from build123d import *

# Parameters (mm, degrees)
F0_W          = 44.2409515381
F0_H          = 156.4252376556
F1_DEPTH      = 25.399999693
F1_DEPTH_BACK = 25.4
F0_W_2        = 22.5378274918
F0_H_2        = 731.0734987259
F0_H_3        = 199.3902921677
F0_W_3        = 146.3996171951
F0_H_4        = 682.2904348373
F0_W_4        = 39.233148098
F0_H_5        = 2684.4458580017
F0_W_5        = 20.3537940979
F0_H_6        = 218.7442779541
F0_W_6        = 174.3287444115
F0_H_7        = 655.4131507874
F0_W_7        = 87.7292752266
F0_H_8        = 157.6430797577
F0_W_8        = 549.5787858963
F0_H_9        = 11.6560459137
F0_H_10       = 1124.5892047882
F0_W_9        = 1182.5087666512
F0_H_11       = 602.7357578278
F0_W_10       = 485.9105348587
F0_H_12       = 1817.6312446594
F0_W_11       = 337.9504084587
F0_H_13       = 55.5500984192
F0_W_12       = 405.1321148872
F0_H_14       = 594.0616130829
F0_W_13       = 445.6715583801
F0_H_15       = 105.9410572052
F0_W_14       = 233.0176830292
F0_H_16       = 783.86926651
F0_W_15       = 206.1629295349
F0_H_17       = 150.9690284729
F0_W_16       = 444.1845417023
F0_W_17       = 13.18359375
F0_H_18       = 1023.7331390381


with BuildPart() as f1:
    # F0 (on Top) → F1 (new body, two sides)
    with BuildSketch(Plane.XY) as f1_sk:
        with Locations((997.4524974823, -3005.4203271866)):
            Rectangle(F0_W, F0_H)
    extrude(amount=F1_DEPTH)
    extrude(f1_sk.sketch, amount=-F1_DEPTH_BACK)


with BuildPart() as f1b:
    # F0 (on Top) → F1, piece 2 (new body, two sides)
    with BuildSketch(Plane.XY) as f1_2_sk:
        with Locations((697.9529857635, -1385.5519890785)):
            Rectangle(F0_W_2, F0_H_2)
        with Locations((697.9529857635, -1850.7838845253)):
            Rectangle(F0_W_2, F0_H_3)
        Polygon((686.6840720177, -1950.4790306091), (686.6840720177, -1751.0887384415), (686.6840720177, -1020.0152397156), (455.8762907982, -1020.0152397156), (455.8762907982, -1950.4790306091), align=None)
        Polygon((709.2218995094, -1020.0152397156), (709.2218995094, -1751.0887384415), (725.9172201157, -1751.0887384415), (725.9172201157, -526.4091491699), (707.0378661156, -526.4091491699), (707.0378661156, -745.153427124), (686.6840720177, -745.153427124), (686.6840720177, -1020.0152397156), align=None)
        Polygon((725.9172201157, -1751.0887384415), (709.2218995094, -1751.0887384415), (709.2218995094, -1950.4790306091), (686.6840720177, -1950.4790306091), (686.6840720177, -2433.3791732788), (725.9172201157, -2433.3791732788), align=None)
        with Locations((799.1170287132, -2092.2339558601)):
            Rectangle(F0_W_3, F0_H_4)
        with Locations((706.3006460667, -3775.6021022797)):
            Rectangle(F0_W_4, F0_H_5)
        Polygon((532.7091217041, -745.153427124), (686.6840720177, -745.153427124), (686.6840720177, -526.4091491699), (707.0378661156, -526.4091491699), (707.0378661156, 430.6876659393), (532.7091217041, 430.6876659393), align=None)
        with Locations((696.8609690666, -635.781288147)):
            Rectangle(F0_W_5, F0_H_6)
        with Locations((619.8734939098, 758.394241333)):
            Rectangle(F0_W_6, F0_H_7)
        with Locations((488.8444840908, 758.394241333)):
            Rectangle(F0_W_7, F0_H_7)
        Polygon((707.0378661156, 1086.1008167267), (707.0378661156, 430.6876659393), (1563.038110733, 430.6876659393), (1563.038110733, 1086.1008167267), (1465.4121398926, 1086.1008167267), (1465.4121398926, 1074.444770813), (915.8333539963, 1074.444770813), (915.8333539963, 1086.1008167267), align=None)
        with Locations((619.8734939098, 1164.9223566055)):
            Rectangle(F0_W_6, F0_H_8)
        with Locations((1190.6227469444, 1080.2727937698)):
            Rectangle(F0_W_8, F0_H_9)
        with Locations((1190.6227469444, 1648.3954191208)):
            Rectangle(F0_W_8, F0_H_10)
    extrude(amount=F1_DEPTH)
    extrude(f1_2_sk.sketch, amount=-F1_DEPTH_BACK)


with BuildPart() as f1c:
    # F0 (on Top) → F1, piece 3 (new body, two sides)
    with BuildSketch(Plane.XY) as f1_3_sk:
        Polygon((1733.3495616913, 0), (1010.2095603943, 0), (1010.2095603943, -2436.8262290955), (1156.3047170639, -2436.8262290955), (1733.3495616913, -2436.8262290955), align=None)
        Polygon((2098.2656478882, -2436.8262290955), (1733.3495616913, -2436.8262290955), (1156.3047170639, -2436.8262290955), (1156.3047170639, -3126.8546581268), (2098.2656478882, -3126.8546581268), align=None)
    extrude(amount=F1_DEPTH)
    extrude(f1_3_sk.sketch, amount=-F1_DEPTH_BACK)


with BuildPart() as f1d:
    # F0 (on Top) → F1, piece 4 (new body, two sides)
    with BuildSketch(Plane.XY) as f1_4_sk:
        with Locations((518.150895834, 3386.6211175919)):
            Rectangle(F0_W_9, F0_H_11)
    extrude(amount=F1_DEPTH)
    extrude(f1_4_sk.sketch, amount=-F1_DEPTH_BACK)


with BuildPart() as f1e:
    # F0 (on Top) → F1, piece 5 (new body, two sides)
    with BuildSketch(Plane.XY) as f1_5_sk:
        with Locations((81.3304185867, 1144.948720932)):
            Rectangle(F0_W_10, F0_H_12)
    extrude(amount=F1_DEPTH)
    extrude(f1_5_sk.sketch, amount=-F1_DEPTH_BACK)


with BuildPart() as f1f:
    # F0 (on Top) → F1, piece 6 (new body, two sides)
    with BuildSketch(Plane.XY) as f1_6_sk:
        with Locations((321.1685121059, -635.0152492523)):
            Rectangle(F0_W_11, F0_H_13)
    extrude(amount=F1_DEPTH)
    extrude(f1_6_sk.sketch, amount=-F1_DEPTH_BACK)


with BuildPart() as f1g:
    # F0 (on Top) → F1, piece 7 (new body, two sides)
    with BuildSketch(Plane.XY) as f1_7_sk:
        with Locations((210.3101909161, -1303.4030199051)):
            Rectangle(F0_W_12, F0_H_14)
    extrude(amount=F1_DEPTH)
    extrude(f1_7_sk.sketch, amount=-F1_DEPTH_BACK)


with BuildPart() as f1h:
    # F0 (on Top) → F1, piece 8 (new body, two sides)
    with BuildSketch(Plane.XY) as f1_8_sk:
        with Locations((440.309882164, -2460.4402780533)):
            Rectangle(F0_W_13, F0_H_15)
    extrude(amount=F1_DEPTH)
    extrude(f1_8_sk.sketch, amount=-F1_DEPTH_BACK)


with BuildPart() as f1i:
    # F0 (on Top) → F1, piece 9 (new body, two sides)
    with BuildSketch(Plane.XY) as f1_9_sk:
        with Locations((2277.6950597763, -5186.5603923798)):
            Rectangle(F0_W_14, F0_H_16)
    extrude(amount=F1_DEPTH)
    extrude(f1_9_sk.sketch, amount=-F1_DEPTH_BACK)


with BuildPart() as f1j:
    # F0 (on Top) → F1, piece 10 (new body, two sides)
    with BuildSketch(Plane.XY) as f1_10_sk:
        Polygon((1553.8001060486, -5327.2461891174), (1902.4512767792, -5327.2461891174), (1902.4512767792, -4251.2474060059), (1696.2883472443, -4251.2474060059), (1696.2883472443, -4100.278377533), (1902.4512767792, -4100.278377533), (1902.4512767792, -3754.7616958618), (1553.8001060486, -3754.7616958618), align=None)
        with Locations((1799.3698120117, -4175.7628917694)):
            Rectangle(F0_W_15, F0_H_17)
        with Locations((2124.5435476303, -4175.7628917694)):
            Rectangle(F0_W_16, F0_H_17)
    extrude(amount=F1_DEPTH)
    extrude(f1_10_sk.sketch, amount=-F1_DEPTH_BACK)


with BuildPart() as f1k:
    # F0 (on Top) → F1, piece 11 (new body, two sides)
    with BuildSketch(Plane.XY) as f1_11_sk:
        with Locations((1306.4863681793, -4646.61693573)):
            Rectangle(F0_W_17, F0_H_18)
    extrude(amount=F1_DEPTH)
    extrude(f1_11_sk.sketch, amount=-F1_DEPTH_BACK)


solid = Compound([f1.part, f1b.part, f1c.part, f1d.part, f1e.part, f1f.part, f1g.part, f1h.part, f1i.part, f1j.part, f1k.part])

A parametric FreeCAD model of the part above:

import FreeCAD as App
import Part
import Sketcher
from FreeCAD import Vector
Q = App.Units.Quantity


def add_polygon(sketch, points):
    """Adds a closed chain of lines whose ends are joined by coincident constraints."""
    first, n = sketch.GeometryCount, len(points)
    for a, b in zip(points, points[1:] + points[:1]):
        sketch.addGeometry(Part.LineSegment(App.Vector(*a, 0), App.Vector(*b, 0)), False)
    for i in range(n):
        sketch.addConstraint(Sketcher.Constraint("Coincident", first + i, 2, first + (i + 1) % n, 1))

doc = App.newDocument("Part")
body = doc.addObject("PartDesign::Body", "Body")

# Sketch on XY plane
sketch1 = body.newObject("Sketcher::SketchObject", "Sketch")
sketch1.AttachmentSupport = (doc.getObject("XY_Plane"), [""])
sketch1.MapMode = "FlatFace"
add_polygon(sketch1, [(975.332022, -2927.207708), (975.332022, -3083.632946), (1019.572973, -3083.632946), (1019.572973, -2927.207708)])  # lines 0-3
sketch1.addConstraint(Sketcher.Constraint("Vertical", 0))
sketch1.addConstraint(Sketcher.Constraint("Horizontal", 1))
sketch1.addConstraint(Sketcher.Constraint("Vertical", 2))
sketch1.addConstraint(Sketcher.Constraint("Horizontal", 3))
sketch1.addConstraint(Sketcher.Constraint("DistanceX", 1, 1, 1, 2, 44.240952))
sketch1.addConstraint(Sketcher.Constraint("DistanceY", 0, 2, 0, 1, 156.425238))
sketch1.addConstraint(Sketcher.Constraint("DistanceX", -1, 1, 0, 2, 975.332022))
sketch1.addConstraint(Sketcher.Constraint("DistanceY", 2, 2, -1, 1, 2927.207708))
pad1 = body.newObject("PartDesign::Pad", "Pad")
pad1.Profile = sketch1
pad1.Type = "TwoLengths"
pad1.Length = Q("1 in")
pad1.Length2 = Q("1 in")
body2 = doc.addObject("PartDesign::Body", "Body001")

# Sketch on XY plane
sketch2 = body2.newObject("Sketcher::SketchObject", "Sketch001")
sketch2.AttachmentSupport = (doc.getObject("XY_Plane001"), [""])
sketch2.MapMode = "FlatFace"
add_polygon(sketch2, [(725.91722, -526.409149), (707.037866, -526.409149), (707.037866, 430.687666), (1563.038111, 430.687666), (1563.038111, 1086.100817), (1465.41214, 1086.100817), (1465.41214, 2210.690022), (915.833354, 2210.690022), (915.833354, 1086.100817), (707.037866, 1086.100817), (707.037866, 1243.743896), (532.709122, 1243.743896), (532.709122, 1086.100817), (444.979846, 1086.100817), (444.979846, 430.687666), (532.709122, 430.687666), (532.709122, -745.153427), (686.684072, -745.153427), (686.684072, -1020.01524), (455.876291, -1020.01524), (455.876291, -1950.479031), (686.684072, -1950.479031), (686.684072, -5117.825031), (725.91722, -5117.825031), (725.91722, -2433.379173), (872.316837, -2433.379173), (872.316837, -1751.088738), (725.91722, -1751.088738)])  # lines 0-27
sketch2.addConstraint(Sketcher.Constraint("Horizontal", 0))
sketch2.addConstraint(Sketcher.Constraint("Vertical", 1))
sketch2.addConstraint(Sketcher.Constraint("Horizontal", 2))
sketch2.addConstraint(Sketcher.Constraint("Vertical", 3))
sketch2.addConstraint(Sketcher.Constraint("Horizontal", 4))
sketch2.addConstraint(Sketcher.Constraint("Vertical", 5))
sketch2.addConstraint(Sketcher.Constraint("Horizontal", 6))
sketch2.addConstraint(Sketcher.Constraint("Vertical", 7))
sketch2.addConstraint(Sketcher.Constraint("Horizontal", 8))
sketch2.addConstraint(Sketcher.Constraint("Vertical", 9))
sketch2.addConstraint(Sketcher.Constraint("Horizontal", 10))
sketch2.addConstraint(Sketcher.Constraint("Vertical", 11))
sketch2.addConstraint(Sketcher.Constraint("Horizontal", 12))
sketch2.addConstraint(Sketcher.Constraint("Vertical", 13))
sketch2.addConstraint(Sketcher.Constraint("Horizontal", 14))
sketch2.addConstraint(Sketcher.Constraint("Vertical", 15))
sketch2.addConstraint(Sketcher.Constraint("Horizontal", 16))
sketch2.addConstraint(Sketcher.Constraint("Vertical", 17))
sketch2.addConstraint(Sketcher.Constraint("Horizontal", 18))
sketch2.addConstraint(Sketcher.Constraint("Vertical", 19))
sketch2.addConstraint(Sketcher.Constraint("Horizontal", 20))
sketch2.addConstraint(Sketcher.Constraint("Vertical", 21))
sketch2.addConstraint(Sketcher.Constraint("Horizontal", 22))
sketch2.addConstraint(Sketcher.Constraint("Vertical", 23))
sketch2.addConstraint(Sketcher.Constraint("Horizontal", 24))
sketch2.addConstraint(Sketcher.Constraint("Vertical", 25))
sketch2.addConstraint(Sketcher.Constraint("Horizontal", 26))
sketch2.addConstraint(Sketcher.Constraint("Vertical", 27))
sketch2.addConstraint(Sketcher.Constraint("Horizontal", 4, 2, 7, 2))
sketch2.addConstraint(Sketcher.Constraint("Horizontal", 8, 2, 11, 2))
sketch2.addConstraint(Sketcher.Constraint("Horizontal", 2, 2, 13, 2))
sketch2.addConstraint(Sketcher.Constraint("Vertical", 1, 2, 8, 2))
sketch2.addConstraint(Sketcher.Constraint("Vertical", 11, 2, 14, 2))
sketch2.addConstraint(Sketcher.Constraint("Vertical", 17, 2, 20, 2))
sketch2.addConstraint(Sketcher.Constraint("Vertical", 23, 2, 26, 2))
sketch2.addConstraint(Sketcher.Constraint("DistanceY", 21, 2, 21, 1, 3167.346001))
sketch2.addConstraint(Sketcher.Constraint("DistanceX", -1, 1, 10, 2, Q("20.9728001 in")))
sketch2.addConstraint(Sketcher.Constraint("DistanceX", 4, 2, 4, 1, 97.625971))
sketch2.addConstraint(Sketcher.Constraint("DistanceX", 16, 1, 16, 2, 153.97495))
sketch2.addConstraint(Sketcher.Constraint("DistanceX", 18, 2, 18, 1, 230.807781))
sketch2.addConstraint(Sketcher.Constraint("DistanceX", 22, 1, 22, 2, 39.233148))
sketch2.addConstraint(Sketcher.Constraint("DistanceY", 3, 1, 3, 2, 655.413151))
sketch2.addConstraint(Sketcher.Constraint("DistanceY", 9, 1, 9, 2, 157.64308))
sketch2.addConstraint(Sketcher.Constraint("DistanceY", 19, 2, 19, 1, 930.463791))
sketch2.addConstraint(Sketcher.Constraint("DistanceY", 23, 1, 23, 2, 2684.445858))
sketch2.addConstraint(Sketcher.Constraint("DistanceY", 27, 1, 27, 2, 1224.679589))
sketch2.addConstraint(Sketcher.Constraint("DistanceY", 25, 2, 17, 2, 731.073499))
sketch2.addConstraint(Sketcher.Constraint("DistanceX", 0, 2, 0, 1, 18.879354))
sketch2.addConstraint(Sketcher.Constraint("DistanceX", 2, 1, 2, 2, 856.000245))
sketch2.addConstraint(Sketcher.Constraint("DistanceX", 6, 2, 6, 1, 549.578786))
sketch2.addConstraint(Sketcher.Constraint("DistanceX", 12, 2, 12, 1, 87.729275))
sketch2.addConstraint(Sketcher.Constraint("DistanceX", 24, 1, 24, 2, 146.399617))
sketch2.addConstraint(Sketcher.Constraint("DistanceY", 1, 1, 1, 2, 957.096815))
sketch2.addConstraint(Sketcher.Constraint("DistanceY", 5, 1, 5, 2, 1124.589205))
sketch2.addConstraint(Sketcher.Constraint("DistanceY", 15, 2, 15, 1, 1175.841093))
sketch2.addConstraint(Sketcher.Constraint("DistanceY", 0, 2, -1, 1, 526.409149))
pad2 = body2.newObject("PartDesign::Pad", "Pad001")
pad2.Profile = sketch2
pad2.Type = "TwoLengths"
pad2.Length = Q("1 in")
pad2.Length2 = Q("1 in")
body3 = doc.addObject("PartDesign::Body", "Body002")

# Sketch on XY plane
sketch3 = body3.newObject("Sketcher::SketchObject", "Sketch002")
sketch3.AttachmentSupport = (doc.getObject("XY_Plane002"), [""])
sketch3.MapMode = "FlatFace"
add_polygon(sketch3, [(1733.349562, 0), (1010.20956, 0), (1010.20956, -2436.826229), (1156.304717, -2436.826229), (1156.304717, -3126.854658), (2098.265648, -3126.854658), (2098.265648, -2436.826229), (1733.349562, -2436.826229)])  # lines 0-7
sketch3.addConstraint(Sketcher.Constraint("Horizontal", 0))
sketch3.addConstraint(Sketcher.Constraint("Vertical", 1))
sketch3.addConstraint(Sketcher.Constraint("Horizontal", 2))
sketch3.addConstraint(Sketcher.Constraint("Vertical", 3))
sketch3.addConstraint(Sketcher.Constraint("Horizontal", 4))
sketch3.addConstraint(Sketcher.Constraint("Vertical", 5))
sketch3.addConstraint(Sketcher.Constraint("Horizontal", 6))
sketch3.addConstraint(Sketcher.Constraint("Vertical", 7))
sketch3.addConstraint(Sketcher.Constraint("PointOnObject", 0, 2, -1))
sketch3.addConstraint(Sketcher.Constraint("Horizontal", 2, 2, 5, 2))
sketch3.addConstraint(Sketcher.Constraint("DistanceX", 0, 2, 0, 1, 723.140001))
sketch3.addConstraint(Sketcher.Constraint("DistanceX", 4, 1, 4, 2, 941.960931))
sketch3.addConstraint(Sketcher.Constraint("DistanceY", 1, 2, 1, 1, 2436.826229))
sketch3.addConstraint(Sketcher.Constraint("DistanceY", 3, 2, 3, 1, 690.028429))
sketch3.addConstraint(Sketcher.Constraint("DistanceX", 2, 1, 2, 2, 146.095157))
sketch3.addConstraint(Sketcher.Constraint("DistanceX", -1, 1, 0, 2, 1010.20956))
pad3 = body3.newObject("PartDesign::Pad", "Pad002")
pad3.Profile = sketch3
pad3.Type = "TwoLengths"
pad3.Length = Q("1 in")
pad3.Length2 = Q("1 in")
body4 = doc.addObject("PartDesign::Body", "Body003")

# Sketch on XY plane
sketch4 = body4.newObject("Sketcher::SketchObject", "Sketch003")
sketch4.AttachmentSupport = (doc.getObject("XY_Plane003"), [""])
sketch4.MapMode = "FlatFace"
add_polygon(sketch4, [(-73.103487, 3687.988997), (-73.103487, 3085.253239), (1109.405279, 3085.253239), (1109.405279, 3687.988997)])  # lines 0-3
sketch4.addConstraint(Sketcher.Constraint("Vertical", 0))
sketch4.addConstraint(Sketcher.Constraint("Horizontal", 1))
sketch4.addConstraint(Sketcher.Constraint("Vertical", 2))
sketch4.addConstraint(Sketcher.Constraint("Horizontal", 3))
sketch4.addConstraint(Sketcher.Constraint("DistanceX", 1, 1, 1, 2, 1182.508767))
sketch4.addConstraint(Sketcher.Constraint("DistanceY", 0, 2, 0, 1, 602.735758))
sketch4.addConstraint(Sketcher.Constraint("DistanceY", -1, 1, 0, 2, 3085.253239))
sketch4.addConstraint(Sketcher.Constraint("DistanceX", -1, 1, 1, 2, 1109.405279))
pad4 = body4.newObject("PartDesign::Pad", "Pad003")
pad4.Profile = sketch4
pad4.Type = "TwoLengths"
pad4.Length = Q("1 in")
pad4.Length2 = Q("1 in")
body5 = doc.addObject("PartDesign::Body", "Body004")

# Sketch on XY plane
sketch5 = body5.newObject("Sketcher::SketchObject", "Sketch004")
sketch5.AttachmentSupport = (doc.getObject("XY_Plane004"), [""])
sketch5.MapMode = "FlatFace"
add_polygon(sketch5, [(-161.624849, 2053.764343), (-161.624849, 236.133099), (324.285686, 236.133099), (324.285686, 2053.764343)])  # lines 0-3
sketch5.addConstraint(Sketcher.Constraint("Vertical", 0))
sketch5.addConstraint(Sketcher.Constraint("Horizontal", 1))
sketch5.addConstraint(Sketcher.Constraint("Vertical", 2))
sketch5.addConstraint(Sketcher.Constraint("Horizontal", 3))
sketch5.addConstraint(Sketcher.Constraint("DistanceY", -1, 1, 0, 2, 236.133099))
sketch5.addConstraint(Sketcher.Constraint("DistanceX", 1, 1, 1, 2, 485.910535))
sketch5.addConstraint(Sketcher.Constraint("DistanceY", 0, 2, 0, 1, 1817.631245))
sketch5.addConstraint(Sketcher.Constraint("DistanceX", 0, 2, -1, 1, 161.624849))
pad5 = body5.newObject("PartDesign::Pad", "Pad004")
pad5.Profile = sketch5
pad5.Type = "TwoLengths"
pad5.Length = Q("1 in")
pad5.Length2 = Q("1 in")
body6 = doc.addObject("PartDesign::Body", "Body005")

# Sketch on XY plane
sketch6 = body6.newObject("Sketcher::SketchObject", "Sketch005")
sketch6.AttachmentSupport = (doc.getObject("XY_Plane005"), [""])
sketch6.MapMode = "FlatFace"
add_polygon(sketch6, [(152.193308, -607.2402), (152.193308, -662.790298), (490.143716, -662.790298), (490.143716, -607.2402)])  # lines 0-3
sketch6.addConstraint(Sketcher.Constraint("Vertical", 0))
sketch6.addConstraint(Sketcher.Constraint("Horizontal", 1))
sketch6.addConstraint(Sketcher.Constraint("Vertical", 2))
sketch6.addConstraint(Sketcher.Constraint("Horizontal", 3))
sketch6.addConstraint(Sketcher.Constraint("DistanceY", 0, 2, 0, 1, 55.550098))
sketch6.addConstraint(Sketcher.Constraint("DistanceX", 1, 1, 1, 2, 337.950408))
sketch6.addConstraint(Sketcher.Constraint("DistanceY", 0, 2, -1, 1, 662.790298))
sketch6.addConstraint(Sketcher.Constraint("DistanceX", -1, 1, 0, 2, 152.193308))
pad6 = body6.newObject("PartDesign::Pad", "Pad005")
pad6.Profile = sketch6
pad6.Type = "TwoLengths"
pad6.Length = Q("1 in")
pad6.Length2 = Q("1 in")
body7 = doc.addObject("PartDesign::Body", "Body006")

# Sketch on XY plane
sketch7 = body7.newObject("Sketcher::SketchObject", "Sketch006")
sketch7.AttachmentSupport = (doc.getObject("XY_Plane006"), [""])
sketch7.MapMode = "FlatFace"
add_polygon(sketch7, [(7.744133, -1006.372213), (7.744133, -1600.433826), (412.876248, -1600.433826), (412.876248, -1006.372213)])  # lines 0-3
sketch7.addConstraint(Sketcher.Constraint("Vertical", 0))
sketch7.addConstraint(Sketcher.Constraint("Horizontal", 1))
sketch7.addConstraint(Sketcher.Constraint("Vertical", 2))
sketch7.addConstraint(Sketcher.Constraint("Horizontal", 3))
sketch7.addConstraint(Sketcher.Constraint("DistanceX", 1, 1, 1, 2, 405.132115))
sketch7.addConstraint(Sketcher.Constraint("DistanceY", 0, 2, 0, 1, 594.061613))
sketch7.addConstraint(Sketcher.Constraint("DistanceX", -1, 1, 1, 2, 412.876248))
sketch7.addConstraint(Sketcher.Constraint("DistanceY", 0, 2, -1, 1, 1600.433826))
pad7 = body7.newObject("PartDesign::Pad", "Pad006")
pad7.Profile = sketch7
pad7.Type = "TwoLengths"
pad7.Length = Q("1 in")
pad7.Length2 = Q("1 in")
body8 = doc.addObject("PartDesign::Body", "Body007")

# Sketch on XY plane
sketch8 = body8.newObject("Sketcher::SketchObject", "Sketch007")
sketch8.AttachmentSupport = (doc.getObject("XY_Plane007"), [""])
sketch8.MapMode = "FlatFace"
add_polygon(sketch8, [(217.474103, -2407.469749), (217.474103, -2513.410807), (663.145661, -2513.410807), (663.145661, -2407.469749)])  # lines 0-3
sketch8.addConstraint(Sketcher.Constraint("Vertical", 0))
sketch8.addConstraint(Sketcher.Constraint("Horizontal", 1))
sketch8.addConstraint(Sketcher.Constraint("Vertical", 2))
sketch8.addConstraint(Sketcher.Constraint("Horizontal", 3))
sketch8.addConstraint(Sketcher.Constraint("DistanceX", 1, 1, 1, 2, 445.671558))
sketch8.addConstraint(Sketcher.Constraint("DistanceY", 0, 2, 0, 1, 105.941057))
sketch8.addConstraint(Sketcher.Constraint("DistanceX", -1, 1, 1, 2, 663.145661))
sketch8.addConstraint(Sketcher.Constraint("DistanceY", 2, 2, -1, 1, 2407.469749))
pad8 = body8.newObject("PartDesign::Pad", "Pad007")
pad8.Profile = sketch8
pad8.Type = "TwoLengths"
pad8.Length = Q("1 in")
pad8.Length2 = Q("1 in")
body9 = doc.addObject("PartDesign::Body", "Body008")

# Sketch on XY plane
sketch9 = body9.newObject("Sketcher::SketchObject", "Sketch008")
sketch9.AttachmentSupport = (doc.getObject("XY_Plane008"), [""])
sketch9.MapMode = "FlatFace"
add_polygon(sketch9, [(2161.186218, -4794.625759), (2161.186218, -5578.495026), (2394.203901, -5578.495026), (2394.203901, -4794.625759)])  # lines 0-3
sketch9.addConstraint(Sketcher.Constraint("Vertical", 0))
sketch9.addConstraint(Sketcher.Constraint("Horizontal", 1))
sketch9.addConstraint(Sketcher.Constraint("Vertical", 2))
sketch9.addConstraint(Sketcher.Constraint("Horizontal", 3))
sketch9.addConstraint(Sketcher.Constraint("DistanceX", -1, 1, 1, 2, 2394.203901))
sketch9.addConstraint(Sketcher.Constraint("DistanceX", 1, 1, 1, 2, 233.017683))
sketch9.addConstraint(Sketcher.Constraint("DistanceY", 0, 2, 0, 1, 783.869267))
sketch9.addConstraint(Sketcher.Constraint("DistanceY", 2, 2, -1, 1, 4794.625759))
pad9 = body9.newObject("PartDesign::Pad", "Pad008")
pad9.Profile = sketch9
pad9.Type = "TwoLengths"
pad9.Length = Q("1 in")
pad9.Length2 = Q("1 in")
body10 = doc.addObject("PartDesign::Body", "Body009")

# Sketch on XY plane
sketch10 = body10.newObject("Sketcher::SketchObject", "Sketch009")
sketch10.AttachmentSupport = (doc.getObject("XY_Plane009"), [""])
sketch10.MapMode = "FlatFace"
add_polygon(sketch10, [(1553.800106, -5327.246189), (1902.451277, -5327.246189), (1902.451277, -4251.247406), (2346.635818, -4251.247406), (2346.635818, -4100.278378), (1902.451277, -4100.278378), (1902.451277, -3754.761696), (1553.800106, -3754.761696)])  # lines 0-7
sketch10.addConstraint(Sketcher.Constraint("Horizontal", 0))
sketch10.addConstraint(Sketcher.Constraint("Vertical", 1))
sketch10.addConstraint(Sketcher.Constraint("Horizontal", 2))
sketch10.addConstraint(Sketcher.Constraint("Vertical", 3))
sketch10.addConstraint(Sketcher.Constraint("Horizontal", 4))
sketch10.addConstraint(Sketcher.Constraint("Vertical", 5))
sketch10.addConstraint(Sketcher.Constraint("Horizontal", 6))
sketch10.addConstraint(Sketcher.Constraint("Vertical", 7))
sketch10.addConstraint(Sketcher.Constraint("Vertical", 1, 2, 4, 2))
sketch10.addConstraint(Sketcher.Constraint("DistanceX", 0, 1, 0, 2, 348.651171))
sketch10.addConstraint(Sketcher.Constraint("DistanceX", 2, 1, 2, 2, 444.184542))
sketch10.addConstraint(Sketcher.Constraint("DistanceY", 3, 1, 3, 2, 150.969028))
sketch10.addConstraint(Sketcher.Constraint("DistanceY", 5, 1, 5, 2, 345.516682))
sketch10.addConstraint(Sketcher.Constraint("DistanceY", 1, 1, 1, 2, 1075.998783))
sketch10.addConstraint(Sketcher.Constraint("DistanceY", 0, 2, -1, 1, 5327.246189))
sketch10.addConstraint(Sketcher.Constraint("DistanceX", -1, 1, 2, 2, 2346.635818))
pad10 = body10.newObject("PartDesign::Pad", "Pad009")
pad10.Profile = sketch10
pad10.Type = "TwoLengths"
pad10.Length = Q("1 in")
pad10.Length2 = Q("1 in")
body11 = doc.addObject("PartDesign::Body", "Body010")

# Sketch on XY plane
sketch11 = body11.newObject("Sketcher::SketchObject", "Sketch010")
sketch11.AttachmentSupport = (doc.getObject("XY_Plane010"), [""])
sketch11.MapMode = "FlatFace"
add_polygon(sketch11, [(1299.894571, -4134.750366), (1299.894571, -5158.483505), (1313.078165, -5158.483505), (1313.078165, -4134.750366)])  # lines 0-3
sketch11.addConstraint(Sketcher.Constraint("Vertical", 0))
sketch11.addConstraint(Sketcher.Constraint("Horizontal", 1))
sketch11.addConstraint(Sketcher.Constraint("Vertical", 2))
sketch11.addConstraint(Sketcher.Constraint("Horizontal", 3))
sketch11.addConstraint(Sketcher.Constraint("DistanceY", 0, 2, 0, 1, 1023.733139))
sketch11.addConstraint(Sketcher.Constraint("DistanceX", 1, 1, 1, 2, 13.183594))
sketch11.addConstraint(Sketcher.Constraint("DistanceX", -1, 1, 0, 2, 1299.894571))
sketch11.addConstraint(Sketcher.Constraint("DistanceY", 0, 2, -1, 1, 5158.483505))
pad11 = body11.newObject("PartDesign::Pad", "Pad010")
pad11.Profile = sketch11
pad11.Type = "TwoLengths"
pad11.Length = Q("1 in")
pad11.Length2 = Q("1 in")

doc.recompute()
